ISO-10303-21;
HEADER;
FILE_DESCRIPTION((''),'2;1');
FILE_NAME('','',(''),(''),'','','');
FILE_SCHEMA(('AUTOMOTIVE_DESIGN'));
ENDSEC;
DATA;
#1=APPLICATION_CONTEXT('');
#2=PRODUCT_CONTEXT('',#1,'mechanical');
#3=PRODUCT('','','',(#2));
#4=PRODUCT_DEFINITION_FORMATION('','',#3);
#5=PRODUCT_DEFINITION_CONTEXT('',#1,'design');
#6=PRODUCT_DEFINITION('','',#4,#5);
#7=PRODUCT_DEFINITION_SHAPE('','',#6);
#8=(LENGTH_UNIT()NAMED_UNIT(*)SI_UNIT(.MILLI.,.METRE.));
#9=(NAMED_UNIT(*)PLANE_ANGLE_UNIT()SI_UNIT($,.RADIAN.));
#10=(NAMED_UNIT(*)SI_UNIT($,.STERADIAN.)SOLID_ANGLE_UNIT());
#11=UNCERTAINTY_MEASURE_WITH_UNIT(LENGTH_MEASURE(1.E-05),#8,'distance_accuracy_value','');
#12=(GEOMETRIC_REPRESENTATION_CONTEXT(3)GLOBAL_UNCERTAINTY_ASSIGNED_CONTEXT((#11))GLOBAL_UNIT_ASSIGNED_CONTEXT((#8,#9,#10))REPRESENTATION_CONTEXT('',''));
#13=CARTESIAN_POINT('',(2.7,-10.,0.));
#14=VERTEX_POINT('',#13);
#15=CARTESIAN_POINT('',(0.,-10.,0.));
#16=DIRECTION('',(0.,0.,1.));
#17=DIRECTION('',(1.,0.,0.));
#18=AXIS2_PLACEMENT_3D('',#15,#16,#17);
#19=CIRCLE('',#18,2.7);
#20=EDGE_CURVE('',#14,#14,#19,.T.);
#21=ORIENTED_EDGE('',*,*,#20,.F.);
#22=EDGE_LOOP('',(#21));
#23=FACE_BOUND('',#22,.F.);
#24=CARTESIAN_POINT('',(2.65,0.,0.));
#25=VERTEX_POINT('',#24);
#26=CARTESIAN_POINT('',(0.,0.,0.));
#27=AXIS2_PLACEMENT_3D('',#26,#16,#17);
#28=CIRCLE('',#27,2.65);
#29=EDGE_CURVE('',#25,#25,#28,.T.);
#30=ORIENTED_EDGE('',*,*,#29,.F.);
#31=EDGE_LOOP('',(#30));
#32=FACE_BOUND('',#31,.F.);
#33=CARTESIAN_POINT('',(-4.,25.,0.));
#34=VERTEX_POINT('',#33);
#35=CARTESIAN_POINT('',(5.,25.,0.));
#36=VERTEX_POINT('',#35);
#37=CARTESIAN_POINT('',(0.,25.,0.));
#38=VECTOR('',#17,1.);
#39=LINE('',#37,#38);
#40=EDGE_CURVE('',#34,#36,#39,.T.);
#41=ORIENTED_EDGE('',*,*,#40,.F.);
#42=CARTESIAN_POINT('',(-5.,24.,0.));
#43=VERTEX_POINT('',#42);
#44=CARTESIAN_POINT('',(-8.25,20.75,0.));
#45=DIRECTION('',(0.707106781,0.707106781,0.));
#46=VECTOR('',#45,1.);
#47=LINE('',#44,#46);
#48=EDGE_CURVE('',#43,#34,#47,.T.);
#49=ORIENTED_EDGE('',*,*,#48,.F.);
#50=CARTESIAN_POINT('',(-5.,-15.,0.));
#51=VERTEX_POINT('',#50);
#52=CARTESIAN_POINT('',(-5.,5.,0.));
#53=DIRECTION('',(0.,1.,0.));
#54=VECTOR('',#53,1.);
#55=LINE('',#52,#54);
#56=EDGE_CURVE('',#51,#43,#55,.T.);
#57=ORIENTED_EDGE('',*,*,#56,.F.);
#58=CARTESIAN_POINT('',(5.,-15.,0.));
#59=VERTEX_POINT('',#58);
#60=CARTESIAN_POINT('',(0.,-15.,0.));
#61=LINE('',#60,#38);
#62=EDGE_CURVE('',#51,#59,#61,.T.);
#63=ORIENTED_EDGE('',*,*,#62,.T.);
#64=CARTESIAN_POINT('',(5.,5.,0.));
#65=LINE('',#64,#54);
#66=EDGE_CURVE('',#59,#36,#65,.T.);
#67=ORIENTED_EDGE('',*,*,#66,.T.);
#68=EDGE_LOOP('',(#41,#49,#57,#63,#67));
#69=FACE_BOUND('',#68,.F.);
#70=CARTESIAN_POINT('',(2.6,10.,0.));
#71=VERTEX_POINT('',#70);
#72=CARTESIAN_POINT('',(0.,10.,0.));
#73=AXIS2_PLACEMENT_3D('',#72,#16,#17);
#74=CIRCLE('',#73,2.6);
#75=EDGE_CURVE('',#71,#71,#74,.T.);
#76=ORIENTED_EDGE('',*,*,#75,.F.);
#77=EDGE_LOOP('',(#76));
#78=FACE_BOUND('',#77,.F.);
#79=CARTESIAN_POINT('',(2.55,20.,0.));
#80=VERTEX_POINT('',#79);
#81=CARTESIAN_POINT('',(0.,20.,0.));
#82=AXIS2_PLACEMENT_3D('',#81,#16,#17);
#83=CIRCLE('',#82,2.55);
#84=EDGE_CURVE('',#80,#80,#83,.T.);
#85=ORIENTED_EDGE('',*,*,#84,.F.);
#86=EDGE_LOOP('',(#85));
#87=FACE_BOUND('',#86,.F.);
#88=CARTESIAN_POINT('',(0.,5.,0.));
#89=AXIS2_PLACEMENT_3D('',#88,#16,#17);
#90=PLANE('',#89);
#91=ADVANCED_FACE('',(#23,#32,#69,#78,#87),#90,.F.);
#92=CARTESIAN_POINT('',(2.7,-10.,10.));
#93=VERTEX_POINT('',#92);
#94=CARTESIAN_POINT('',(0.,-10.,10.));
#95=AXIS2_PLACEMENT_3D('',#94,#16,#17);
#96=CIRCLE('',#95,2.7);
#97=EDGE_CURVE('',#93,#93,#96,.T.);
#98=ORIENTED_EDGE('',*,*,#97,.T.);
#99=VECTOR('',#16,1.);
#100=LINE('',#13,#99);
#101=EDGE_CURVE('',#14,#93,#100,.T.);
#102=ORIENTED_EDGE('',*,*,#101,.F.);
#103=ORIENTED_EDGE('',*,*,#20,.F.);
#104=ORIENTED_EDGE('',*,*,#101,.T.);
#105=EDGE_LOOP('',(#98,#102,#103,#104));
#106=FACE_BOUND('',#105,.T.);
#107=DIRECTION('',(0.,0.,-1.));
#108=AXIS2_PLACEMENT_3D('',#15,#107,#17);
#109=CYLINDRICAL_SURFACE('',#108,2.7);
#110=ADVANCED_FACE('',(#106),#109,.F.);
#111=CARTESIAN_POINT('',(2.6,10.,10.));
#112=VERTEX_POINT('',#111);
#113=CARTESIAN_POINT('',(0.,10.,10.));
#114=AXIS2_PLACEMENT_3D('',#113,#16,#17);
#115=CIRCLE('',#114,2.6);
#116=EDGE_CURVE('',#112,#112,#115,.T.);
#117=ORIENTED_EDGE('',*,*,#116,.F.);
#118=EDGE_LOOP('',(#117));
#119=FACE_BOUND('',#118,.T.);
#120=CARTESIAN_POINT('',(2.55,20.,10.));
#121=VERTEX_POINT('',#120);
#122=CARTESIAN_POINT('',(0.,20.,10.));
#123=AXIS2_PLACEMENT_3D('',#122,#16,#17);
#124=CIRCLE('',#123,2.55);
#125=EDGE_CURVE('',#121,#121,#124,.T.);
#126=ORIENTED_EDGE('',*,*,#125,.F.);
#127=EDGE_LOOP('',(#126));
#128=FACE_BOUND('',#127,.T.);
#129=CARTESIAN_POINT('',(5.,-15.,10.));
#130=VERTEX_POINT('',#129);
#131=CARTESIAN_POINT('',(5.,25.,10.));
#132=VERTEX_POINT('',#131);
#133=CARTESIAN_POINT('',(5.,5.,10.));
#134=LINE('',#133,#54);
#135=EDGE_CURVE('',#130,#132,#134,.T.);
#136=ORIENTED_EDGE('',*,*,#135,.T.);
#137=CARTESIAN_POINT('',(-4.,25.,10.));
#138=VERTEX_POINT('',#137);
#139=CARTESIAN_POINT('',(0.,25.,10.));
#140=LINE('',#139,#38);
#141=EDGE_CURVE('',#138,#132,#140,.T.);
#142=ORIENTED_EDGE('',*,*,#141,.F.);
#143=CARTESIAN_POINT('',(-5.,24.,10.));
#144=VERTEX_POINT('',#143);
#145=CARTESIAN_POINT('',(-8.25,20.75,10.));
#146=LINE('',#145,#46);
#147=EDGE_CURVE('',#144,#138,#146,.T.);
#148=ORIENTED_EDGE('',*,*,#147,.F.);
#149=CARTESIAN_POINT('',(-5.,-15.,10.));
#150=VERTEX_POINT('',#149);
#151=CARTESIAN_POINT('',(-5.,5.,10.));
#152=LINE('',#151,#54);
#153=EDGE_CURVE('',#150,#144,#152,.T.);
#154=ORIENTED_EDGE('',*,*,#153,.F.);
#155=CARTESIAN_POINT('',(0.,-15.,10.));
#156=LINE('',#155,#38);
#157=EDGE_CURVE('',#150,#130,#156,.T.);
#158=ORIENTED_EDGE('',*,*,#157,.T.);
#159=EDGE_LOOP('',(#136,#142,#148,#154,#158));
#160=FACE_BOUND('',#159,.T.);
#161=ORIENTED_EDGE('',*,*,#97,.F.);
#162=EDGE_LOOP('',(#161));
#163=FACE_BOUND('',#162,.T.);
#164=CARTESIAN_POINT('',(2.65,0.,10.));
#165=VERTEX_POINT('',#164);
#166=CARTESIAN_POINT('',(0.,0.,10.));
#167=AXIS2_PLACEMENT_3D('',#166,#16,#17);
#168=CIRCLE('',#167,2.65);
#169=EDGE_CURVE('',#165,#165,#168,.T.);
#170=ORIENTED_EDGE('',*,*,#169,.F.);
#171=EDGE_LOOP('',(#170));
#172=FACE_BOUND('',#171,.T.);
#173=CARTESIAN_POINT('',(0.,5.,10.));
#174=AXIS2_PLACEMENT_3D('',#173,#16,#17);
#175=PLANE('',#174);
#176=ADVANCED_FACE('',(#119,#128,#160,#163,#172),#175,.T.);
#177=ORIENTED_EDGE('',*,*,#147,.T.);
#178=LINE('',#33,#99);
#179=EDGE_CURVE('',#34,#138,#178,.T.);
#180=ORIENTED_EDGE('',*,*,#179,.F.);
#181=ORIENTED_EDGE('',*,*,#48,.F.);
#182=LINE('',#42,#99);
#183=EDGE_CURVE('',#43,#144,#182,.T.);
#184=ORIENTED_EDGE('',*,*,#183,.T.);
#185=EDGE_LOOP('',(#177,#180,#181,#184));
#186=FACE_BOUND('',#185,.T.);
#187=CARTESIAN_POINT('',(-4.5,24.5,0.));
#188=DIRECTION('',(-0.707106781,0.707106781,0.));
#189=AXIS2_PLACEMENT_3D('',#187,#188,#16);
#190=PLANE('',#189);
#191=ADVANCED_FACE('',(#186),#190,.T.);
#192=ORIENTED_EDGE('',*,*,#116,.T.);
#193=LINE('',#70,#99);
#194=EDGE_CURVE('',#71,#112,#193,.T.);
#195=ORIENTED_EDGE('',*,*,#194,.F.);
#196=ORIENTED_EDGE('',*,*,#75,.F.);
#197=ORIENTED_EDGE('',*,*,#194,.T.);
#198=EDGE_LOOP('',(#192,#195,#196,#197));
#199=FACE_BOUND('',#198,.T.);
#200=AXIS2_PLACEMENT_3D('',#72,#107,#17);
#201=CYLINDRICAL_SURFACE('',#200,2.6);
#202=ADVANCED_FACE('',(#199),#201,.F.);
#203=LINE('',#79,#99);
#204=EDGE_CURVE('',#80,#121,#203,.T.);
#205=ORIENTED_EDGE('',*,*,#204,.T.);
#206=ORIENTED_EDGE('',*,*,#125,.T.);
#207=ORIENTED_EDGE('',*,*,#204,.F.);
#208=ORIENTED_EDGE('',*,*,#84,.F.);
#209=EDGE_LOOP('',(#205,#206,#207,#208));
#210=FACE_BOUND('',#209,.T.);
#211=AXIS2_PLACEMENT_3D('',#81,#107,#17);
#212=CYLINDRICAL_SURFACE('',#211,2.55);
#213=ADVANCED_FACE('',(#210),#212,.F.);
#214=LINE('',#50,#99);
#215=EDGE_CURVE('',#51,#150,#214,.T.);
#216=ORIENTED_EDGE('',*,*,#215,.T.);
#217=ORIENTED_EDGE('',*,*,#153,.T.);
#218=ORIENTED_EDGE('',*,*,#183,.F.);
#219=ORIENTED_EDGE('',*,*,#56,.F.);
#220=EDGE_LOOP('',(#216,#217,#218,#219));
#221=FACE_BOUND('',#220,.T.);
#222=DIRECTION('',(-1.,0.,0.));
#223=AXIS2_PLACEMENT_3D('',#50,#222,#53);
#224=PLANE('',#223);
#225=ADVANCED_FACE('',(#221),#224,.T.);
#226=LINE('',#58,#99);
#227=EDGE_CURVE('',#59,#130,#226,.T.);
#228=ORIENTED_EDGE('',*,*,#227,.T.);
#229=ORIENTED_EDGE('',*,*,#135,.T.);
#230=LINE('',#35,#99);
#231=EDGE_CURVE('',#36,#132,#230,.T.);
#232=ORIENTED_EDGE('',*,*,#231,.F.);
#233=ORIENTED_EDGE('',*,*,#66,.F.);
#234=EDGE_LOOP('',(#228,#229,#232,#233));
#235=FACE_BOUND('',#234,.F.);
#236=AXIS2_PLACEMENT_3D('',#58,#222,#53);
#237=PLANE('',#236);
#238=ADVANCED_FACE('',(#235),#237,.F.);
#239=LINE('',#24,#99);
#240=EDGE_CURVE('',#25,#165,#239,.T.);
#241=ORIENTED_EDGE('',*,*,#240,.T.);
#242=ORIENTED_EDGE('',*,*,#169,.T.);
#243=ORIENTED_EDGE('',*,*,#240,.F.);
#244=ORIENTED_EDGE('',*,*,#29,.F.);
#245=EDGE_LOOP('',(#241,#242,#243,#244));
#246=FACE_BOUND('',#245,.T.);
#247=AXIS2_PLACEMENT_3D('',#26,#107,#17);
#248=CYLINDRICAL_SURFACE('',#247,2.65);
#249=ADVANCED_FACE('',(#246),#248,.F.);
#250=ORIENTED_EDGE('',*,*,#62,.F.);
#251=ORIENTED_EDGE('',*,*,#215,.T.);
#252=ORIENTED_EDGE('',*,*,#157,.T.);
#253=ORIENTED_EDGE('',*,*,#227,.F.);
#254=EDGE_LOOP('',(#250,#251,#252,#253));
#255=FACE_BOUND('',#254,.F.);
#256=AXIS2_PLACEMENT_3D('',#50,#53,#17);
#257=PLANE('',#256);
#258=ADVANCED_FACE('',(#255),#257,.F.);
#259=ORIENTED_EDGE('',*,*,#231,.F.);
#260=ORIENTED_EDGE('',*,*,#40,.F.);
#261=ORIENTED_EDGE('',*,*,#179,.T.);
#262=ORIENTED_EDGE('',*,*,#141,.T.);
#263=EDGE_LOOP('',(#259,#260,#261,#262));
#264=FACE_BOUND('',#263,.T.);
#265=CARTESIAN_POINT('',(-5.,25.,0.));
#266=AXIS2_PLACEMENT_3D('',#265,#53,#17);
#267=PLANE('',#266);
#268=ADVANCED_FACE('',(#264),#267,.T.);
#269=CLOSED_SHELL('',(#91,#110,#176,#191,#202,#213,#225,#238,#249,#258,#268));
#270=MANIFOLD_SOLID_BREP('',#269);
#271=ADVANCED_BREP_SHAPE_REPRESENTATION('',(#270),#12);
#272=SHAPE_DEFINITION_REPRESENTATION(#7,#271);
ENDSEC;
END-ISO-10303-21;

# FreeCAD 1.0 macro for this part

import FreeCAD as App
import Part
import Sketcher

V = App.Vector


def edges_at(feature, points):
    """Names of the edges that pass closest to the given points."""
    edges = feature.Shape.Edges
    near = lambda p: min(range(len(edges)), key=lambda i: edges[i].distToShape(Part.Vertex(*p))[0])
    return sorted({f"Edge{near(p) + 1}" for p in points})


def add_polygon(sketch, points):
    """Adds a closed chain of lines whose ends are joined by coincident constraints."""
    first, n = sketch.GeometryCount, len(points)
    for a, b in zip(points, points[1:] + points[:1]):
        sketch.addGeometry(Part.LineSegment(App.Vector(*a, 0), App.Vector(*b, 0)), False)
    for i in range(n):
        sketch.addConstraint(Sketcher.Constraint("Coincident", first + i, 2, first + (i + 1) % n, 1))

doc = App.newDocument("Part")
body = doc.addObject("PartDesign::Body", "Body")

# Sketch on XY plane
sketch1 = body.newObject("Sketcher::SketchObject", "Sketch")
sketch1.AttachmentSupport = (doc.getObject("XY_Plane"), [""])
sketch1.MapMode = "FlatFace"
sketch1.addGeometry(Part.Circle(V(0, 10, 0), V(0, 0, 1), 2.6), False)
sketch1.addConstraint([
    Sketcher.Constraint("PointOnObject", 0, 3, -2),
    Sketcher.Constraint("Diameter", 0, 5.2),
    Sketcher.Constraint("DistanceY", -1, 1, 0, 3, 10.0),
])
pad1 = body.newObject("PartDesign::Pad", "Pad")
pad1.Profile = sketch1
pad1.Length = 10
body2 = doc.addObject("PartDesign::Body", "Body001")

# Sketch on XY plane
sketch2 = body2.newObject("Sketcher::SketchObject", "Sketch001")
sketch2.AttachmentSupport = (doc.getObject("XY_Plane001"), [""])
sketch2.MapMode = "FlatFace"
sketch2.addGeometry(Part.Circle(V(0, -10, 0), V(0, 0, 1), 2.7), False)
sketch2.addConstraint([
    Sketcher.Constraint("PointOnObject", 0, 3, -2),
    Sketcher.Constraint("Diameter", 0, 5.4),
    Sketcher.Constraint("DistanceY", 0, 3, -1, 1, 10.0),
])
pad2 = body2.newObject("PartDesign::Pad", "Pad001")
pad2.Profile = sketch2
pad2.Length = 10
body3 = doc.addObject("PartDesign::Body", "Body002")

# Sketch on XY plane
sketch3 = body3.newObject("Sketcher::SketchObject", "Sketch002")
sketch3.AttachmentSupport = (doc.getObject("XY_Plane002"), [""])
sketch3.MapMode = "FlatFace"
sketch3.addGeometry(Part.Circle(V(0, 0, 0), V(0, 0, 1), 2.6), False)
sketch3.addConstraint([
    Sketcher.Constraint("Coincident", 0, 3, -1, 1),
    Sketcher.Constraint("Diameter", 0, 5.3),
])
pad3 = body3.newObject("PartDesign::Pad", "Pad002")
pad3.Profile = sketch3
pad3.Length = 10
body4 = doc.addObject("PartDesign::Body", "Body003")
body4.AllowCompound = True

# Sketch on XY plane
sketch4 = body4.newObject("Sketcher::SketchObject", "Sketch003")
sketch4.AttachmentSupport = (doc.getObject("XY_Plane003"), [""])
sketch4.MapMode = "FlatFace"
sketch4.addGeometry(Part.Circle(V(0, 20, 0), V(0, 0, 1), 2.5), False)
sketch4.addConstraint([
    Sketcher.Constraint("PointOnObject", 0, 3, -2),
    Sketcher.Constraint("Diameter", 0, 5.1),
    Sketcher.Constraint("DistanceY", -1, 1, 0, 3, 20.0),
])
pad4 = body4.newObject("PartDesign::Pad", "Pad003")
pad4.Profile = sketch4
pad4.Length = 10
doc.recompute()

boolean = body4.newObject("PartDesign::Boolean", "Boolean")
boolean.Type = "Fuse"
boolean.addObjects([body])
doc.recompute()

boolean2 = body4.newObject("PartDesign::Boolean", "Boolean001")
boolean2.Type = "Fuse"
boolean2.addObjects([body2])
doc.recompute()

boolean3 = body4.newObject("PartDesign::Boolean", "Boolean002")
boolean3.Type = "Fuse"
boolean3.addObjects([body3])
body5 = doc.addObject("PartDesign::Body", "Body004")

# Sketch on XY plane
sketch5 = body5.newObject("Sketcher::SketchObject", "Sketch004")
sketch5.AttachmentSupport = (doc.getObject("XY_Plane004"), [""])
sketch5.MapMode = "FlatFace"
add_polygon(sketch5, [(-5, 25), (-5, -15), (5, -15), (5, 25)])  # lines 0-3
sketch5.addConstraint([
    Sketcher.Constraint("Vertical", 0),
    Sketcher.Constraint("Horizontal", 1),
    Sketcher.Constraint("Vertical", 2),
    Sketcher.Constraint("Horizontal", 3),
    Sketcher.Constraint("DistanceX", 1, 1, 1, 2, 10.0),
    Sketcher.Constraint("DistanceY", 0, 2, 0, 1, 40.0),
    Sketcher.Constraint("DistanceX", 0, 2, -1, 1, 5.0),
    Sketcher.Constraint("DistanceY", 0, 2, -1, 1, 15.0),
])
pad5 = body5.newObject("PartDesign::Pad", "Pad004")
pad5.Profile = sketch5
pad5.Length = 10
doc.recompute()

chamfer = body5.newObject("PartDesign::Chamfer", "Chamfer")
chamfer.Base = (pad5, edges_at(pad5, [(-5, 25, 5)]))
chamfer.Size = 1
doc.recompute()

boolean4 = body5.newObject("PartDesign::Boolean", "Boolean003")
boolean4.Type = "Cut"
boolean4.addObjects([body4])

doc.recompute()
